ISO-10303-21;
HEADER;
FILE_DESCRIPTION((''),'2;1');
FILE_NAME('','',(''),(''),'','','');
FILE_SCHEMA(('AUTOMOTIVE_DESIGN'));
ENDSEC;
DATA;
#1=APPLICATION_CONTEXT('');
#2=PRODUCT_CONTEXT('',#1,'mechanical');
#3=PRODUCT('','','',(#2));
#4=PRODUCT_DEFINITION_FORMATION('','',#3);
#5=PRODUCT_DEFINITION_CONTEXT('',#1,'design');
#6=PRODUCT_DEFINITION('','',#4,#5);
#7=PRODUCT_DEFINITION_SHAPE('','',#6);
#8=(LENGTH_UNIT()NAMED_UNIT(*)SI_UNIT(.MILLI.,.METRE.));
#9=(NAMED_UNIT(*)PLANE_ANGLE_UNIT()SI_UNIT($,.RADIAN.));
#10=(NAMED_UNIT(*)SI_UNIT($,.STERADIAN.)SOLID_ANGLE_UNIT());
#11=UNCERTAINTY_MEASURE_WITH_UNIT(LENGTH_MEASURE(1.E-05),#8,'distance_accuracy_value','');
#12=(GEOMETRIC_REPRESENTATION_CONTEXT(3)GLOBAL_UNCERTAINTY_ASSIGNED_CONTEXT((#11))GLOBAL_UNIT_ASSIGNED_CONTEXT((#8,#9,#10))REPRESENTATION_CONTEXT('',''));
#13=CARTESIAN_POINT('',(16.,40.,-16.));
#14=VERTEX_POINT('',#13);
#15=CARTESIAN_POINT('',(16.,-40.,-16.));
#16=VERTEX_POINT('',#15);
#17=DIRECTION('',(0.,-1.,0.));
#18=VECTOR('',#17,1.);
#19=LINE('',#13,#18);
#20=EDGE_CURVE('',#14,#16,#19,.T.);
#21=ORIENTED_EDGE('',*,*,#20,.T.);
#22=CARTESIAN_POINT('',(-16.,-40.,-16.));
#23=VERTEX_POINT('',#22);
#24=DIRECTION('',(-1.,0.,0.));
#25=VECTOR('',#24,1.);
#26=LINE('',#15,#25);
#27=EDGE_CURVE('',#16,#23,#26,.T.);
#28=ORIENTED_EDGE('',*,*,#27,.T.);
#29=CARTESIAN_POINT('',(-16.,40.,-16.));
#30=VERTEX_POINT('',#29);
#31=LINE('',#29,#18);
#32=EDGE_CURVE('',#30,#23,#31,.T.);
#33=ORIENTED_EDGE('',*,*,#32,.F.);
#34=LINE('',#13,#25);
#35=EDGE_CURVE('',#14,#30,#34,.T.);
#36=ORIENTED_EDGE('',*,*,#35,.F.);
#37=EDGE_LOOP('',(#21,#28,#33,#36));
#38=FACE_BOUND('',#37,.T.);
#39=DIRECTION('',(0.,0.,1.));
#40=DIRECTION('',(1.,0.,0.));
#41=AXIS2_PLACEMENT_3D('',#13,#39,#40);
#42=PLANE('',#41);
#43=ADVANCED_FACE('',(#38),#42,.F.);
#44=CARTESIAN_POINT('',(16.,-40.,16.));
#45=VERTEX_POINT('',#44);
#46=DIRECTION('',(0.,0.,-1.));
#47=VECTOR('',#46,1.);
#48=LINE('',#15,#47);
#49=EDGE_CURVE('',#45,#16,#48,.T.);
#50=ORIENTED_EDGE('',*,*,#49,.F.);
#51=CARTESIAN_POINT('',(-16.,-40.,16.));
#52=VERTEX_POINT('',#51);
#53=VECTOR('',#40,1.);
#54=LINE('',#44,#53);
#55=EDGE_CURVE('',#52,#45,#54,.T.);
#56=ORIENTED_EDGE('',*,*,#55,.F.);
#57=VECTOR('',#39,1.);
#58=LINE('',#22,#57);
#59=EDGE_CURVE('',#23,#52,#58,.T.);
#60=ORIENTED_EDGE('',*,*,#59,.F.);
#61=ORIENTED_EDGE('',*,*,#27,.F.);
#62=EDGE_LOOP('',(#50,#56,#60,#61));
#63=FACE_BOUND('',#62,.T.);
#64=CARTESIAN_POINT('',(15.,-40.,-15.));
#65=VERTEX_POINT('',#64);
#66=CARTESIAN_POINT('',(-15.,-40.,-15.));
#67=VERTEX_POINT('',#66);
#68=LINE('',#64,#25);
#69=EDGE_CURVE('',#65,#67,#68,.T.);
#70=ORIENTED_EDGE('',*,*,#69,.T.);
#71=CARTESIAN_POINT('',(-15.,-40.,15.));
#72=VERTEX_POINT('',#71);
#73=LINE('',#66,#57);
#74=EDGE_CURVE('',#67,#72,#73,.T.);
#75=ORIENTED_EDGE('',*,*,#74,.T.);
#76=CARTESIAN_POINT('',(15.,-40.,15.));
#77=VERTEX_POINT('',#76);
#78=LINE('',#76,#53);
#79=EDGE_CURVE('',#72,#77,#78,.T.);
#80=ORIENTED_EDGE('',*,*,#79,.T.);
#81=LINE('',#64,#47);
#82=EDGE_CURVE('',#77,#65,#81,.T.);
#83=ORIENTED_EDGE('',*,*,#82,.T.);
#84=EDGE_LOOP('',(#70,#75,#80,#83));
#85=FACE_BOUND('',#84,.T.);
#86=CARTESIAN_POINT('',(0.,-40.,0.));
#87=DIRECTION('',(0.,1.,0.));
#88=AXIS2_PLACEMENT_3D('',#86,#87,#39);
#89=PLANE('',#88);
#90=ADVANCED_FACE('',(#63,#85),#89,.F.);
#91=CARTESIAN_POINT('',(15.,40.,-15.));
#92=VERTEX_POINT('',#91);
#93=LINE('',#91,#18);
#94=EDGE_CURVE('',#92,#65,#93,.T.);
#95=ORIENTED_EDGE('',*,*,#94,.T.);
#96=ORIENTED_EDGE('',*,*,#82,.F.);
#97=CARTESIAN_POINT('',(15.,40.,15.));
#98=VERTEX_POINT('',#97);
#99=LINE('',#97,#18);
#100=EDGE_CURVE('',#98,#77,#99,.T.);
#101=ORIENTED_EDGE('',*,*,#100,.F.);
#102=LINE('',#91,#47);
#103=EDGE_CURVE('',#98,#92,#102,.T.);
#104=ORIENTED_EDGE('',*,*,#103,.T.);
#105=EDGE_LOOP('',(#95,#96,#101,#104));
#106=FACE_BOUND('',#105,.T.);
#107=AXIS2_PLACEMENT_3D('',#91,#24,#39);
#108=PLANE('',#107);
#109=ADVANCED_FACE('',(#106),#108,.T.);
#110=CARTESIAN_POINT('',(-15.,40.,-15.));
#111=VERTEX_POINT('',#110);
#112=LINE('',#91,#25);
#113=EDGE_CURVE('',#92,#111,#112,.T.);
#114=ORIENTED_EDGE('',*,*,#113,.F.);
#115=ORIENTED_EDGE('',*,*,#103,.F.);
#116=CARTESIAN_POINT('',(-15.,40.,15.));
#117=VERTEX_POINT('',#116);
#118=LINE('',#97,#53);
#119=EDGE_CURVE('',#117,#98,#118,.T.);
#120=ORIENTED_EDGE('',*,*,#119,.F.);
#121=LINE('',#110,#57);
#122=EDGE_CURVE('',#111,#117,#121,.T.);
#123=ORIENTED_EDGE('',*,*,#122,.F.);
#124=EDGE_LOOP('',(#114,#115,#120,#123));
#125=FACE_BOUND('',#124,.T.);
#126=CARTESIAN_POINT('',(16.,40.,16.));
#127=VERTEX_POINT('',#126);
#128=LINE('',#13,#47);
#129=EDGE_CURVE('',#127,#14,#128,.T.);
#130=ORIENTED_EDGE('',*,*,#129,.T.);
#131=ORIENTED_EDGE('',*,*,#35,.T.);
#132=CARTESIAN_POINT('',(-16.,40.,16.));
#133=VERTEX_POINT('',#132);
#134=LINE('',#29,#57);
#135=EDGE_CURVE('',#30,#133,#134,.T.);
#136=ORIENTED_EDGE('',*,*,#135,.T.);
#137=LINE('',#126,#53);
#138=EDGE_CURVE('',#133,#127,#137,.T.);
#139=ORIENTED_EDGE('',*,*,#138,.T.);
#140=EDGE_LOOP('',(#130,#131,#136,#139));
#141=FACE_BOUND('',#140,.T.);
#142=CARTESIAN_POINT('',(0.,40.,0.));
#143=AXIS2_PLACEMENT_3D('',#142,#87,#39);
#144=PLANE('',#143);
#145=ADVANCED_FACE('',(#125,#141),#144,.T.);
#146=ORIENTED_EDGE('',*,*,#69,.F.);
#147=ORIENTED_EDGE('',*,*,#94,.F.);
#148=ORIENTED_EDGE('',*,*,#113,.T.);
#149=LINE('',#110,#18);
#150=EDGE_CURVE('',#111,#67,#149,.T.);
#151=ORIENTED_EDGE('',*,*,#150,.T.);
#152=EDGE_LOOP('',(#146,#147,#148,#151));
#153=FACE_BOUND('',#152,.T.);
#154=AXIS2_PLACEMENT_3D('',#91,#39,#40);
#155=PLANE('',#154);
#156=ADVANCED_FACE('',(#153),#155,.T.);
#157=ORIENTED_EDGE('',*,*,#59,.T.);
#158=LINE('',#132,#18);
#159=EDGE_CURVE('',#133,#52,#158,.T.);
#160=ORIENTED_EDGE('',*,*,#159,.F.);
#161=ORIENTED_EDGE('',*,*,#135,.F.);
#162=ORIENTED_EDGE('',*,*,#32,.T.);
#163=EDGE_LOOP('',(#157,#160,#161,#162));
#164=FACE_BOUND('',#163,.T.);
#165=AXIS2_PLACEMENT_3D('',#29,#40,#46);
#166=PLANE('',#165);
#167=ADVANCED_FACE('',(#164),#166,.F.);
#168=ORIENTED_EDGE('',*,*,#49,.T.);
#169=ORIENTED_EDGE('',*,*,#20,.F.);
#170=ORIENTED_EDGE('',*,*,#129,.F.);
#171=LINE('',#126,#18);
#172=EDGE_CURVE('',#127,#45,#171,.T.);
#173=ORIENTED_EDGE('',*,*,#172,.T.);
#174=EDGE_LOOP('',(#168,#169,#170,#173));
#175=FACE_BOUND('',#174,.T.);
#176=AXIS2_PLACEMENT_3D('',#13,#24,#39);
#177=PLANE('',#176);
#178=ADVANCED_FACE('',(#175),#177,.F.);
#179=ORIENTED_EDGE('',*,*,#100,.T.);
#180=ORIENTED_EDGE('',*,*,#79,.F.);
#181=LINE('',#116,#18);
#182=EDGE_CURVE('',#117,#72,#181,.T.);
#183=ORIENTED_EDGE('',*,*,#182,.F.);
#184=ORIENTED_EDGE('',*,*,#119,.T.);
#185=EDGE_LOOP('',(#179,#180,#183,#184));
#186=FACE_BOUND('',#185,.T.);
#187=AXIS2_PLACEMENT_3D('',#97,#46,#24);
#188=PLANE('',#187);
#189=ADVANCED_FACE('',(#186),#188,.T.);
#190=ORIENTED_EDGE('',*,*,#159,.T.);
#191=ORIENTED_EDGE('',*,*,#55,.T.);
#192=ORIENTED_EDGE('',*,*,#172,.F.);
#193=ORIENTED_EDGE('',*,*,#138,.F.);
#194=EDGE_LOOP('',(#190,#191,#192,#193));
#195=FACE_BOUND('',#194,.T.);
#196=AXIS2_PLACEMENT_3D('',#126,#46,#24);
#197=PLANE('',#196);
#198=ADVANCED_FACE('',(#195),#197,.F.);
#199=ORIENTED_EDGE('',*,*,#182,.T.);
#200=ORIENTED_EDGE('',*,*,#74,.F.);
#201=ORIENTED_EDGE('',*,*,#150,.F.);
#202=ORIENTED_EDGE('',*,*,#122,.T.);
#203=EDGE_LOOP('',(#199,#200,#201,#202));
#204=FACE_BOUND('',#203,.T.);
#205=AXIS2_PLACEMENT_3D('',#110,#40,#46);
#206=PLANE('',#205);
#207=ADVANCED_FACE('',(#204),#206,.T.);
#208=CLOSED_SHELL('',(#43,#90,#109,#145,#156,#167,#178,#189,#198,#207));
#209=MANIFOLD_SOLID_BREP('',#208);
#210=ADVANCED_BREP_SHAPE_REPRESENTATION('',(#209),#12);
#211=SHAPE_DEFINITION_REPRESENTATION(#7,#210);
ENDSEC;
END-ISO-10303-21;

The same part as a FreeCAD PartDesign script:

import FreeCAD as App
import Part
import Sketcher

V = App.Vector
Q = App.Units.Quantity

doc = App.newDocument("Part")
params = doc.addObject("Spreadsheet::Sheet", "Params")
for row, (alias, value) in enumerate([
    ("sketch1_width", "32 mm"),
    ("sketch1_width2", "30 mm"),
    ("pad1_length", "80 mm"),
], start=1):
    params.set(f"A{row}", alias)
    params.set(f"B{row}", "=" + value)
    params.setAlias(f"B{row}", alias)

body = doc.addObject("PartDesign::Body", "Body")

# Sketch on XZ plane
sketch1 = body.newObject("Sketcher::SketchObject", "Sketch")
sketch1.AttachmentSupport = (doc.getObject("XZ_Plane"), [""])
sketch1.MapMode = "FlatFace"
sketch1.addGeometry([
    Part.LineSegment(V(-16, -16, 0), V(-16, 16, 0)),  # 0
    Part.LineSegment(V(-16, 16, 0), V(16, 16, 0)),  # 1
    Part.LineSegment(V(16, 16, 0), V(16, -16, 0)),  # 2
    Part.LineSegment(V(16, -16, 0), V(-16, -16, 0)),  # 3
    Part.LineSegment(V(15, 15, 0), V(-15, 15, 0)),  # 4
    Part.LineSegment(V(-15, 15, 0), V(-15, -15, 0)),  # 5
    Part.LineSegment(V(-15, -15, 0), V(15, -15, 0)),  # 6
    Part.LineSegment(V(15, -15, 0), V(15, 15, 0)),  # 7
], False)
sketch1.addConstraint([
    Sketcher.Constraint("Coincident", 0, 2, 1, 1),
    Sketcher.Constraint("Coincident", 1, 2, 2, 1),
    Sketcher.Constraint("Coincident", 2, 2, 3, 1),
    Sketcher.Constraint("Coincident", 3, 2, 0, 1),
    Sketcher.Constraint("Coincident", 4, 2, 5, 1),
    Sketcher.Constraint("Coincident", 5, 2, 6, 1),
    Sketcher.Constraint("Coincident", 6, 2, 7, 1),
    Sketcher.Constraint("Coincident", 7, 2, 4, 1),
    Sketcher.Constraint("Vertical", 0),
    Sketcher.Constraint("Horizontal", 1),
    Sketcher.Constraint("Vertical", 2),
    Sketcher.Constraint("Horizontal", 3),
    Sketcher.Constraint("Horizontal", 4),
    Sketcher.Constraint("Vertical", 5),
    Sketcher.Constraint("Horizontal", 6),
    Sketcher.Constraint("Vertical", 7),
    Sketcher.Constraint("Symmetric", 0, 2, 2, 2, -1, 1),
    Sketcher.Constraint("Symmetric", 4, 2, 6, 2, -1, 1),
    Sketcher.Constraint("Equal", 3, 0),
    Sketcher.Constraint("Equal", 6, 5),
    Sketcher.Constraint("DistanceX", 1, 1, 1, 2, Q("32 mm")),
    Sketcher.Constraint("DistanceX", 4, 2, 4, 1, Q("30 mm")),
])
sketch1.setExpression("Constraints[20]", "Params.sketch1_width")
sketch1.setExpression("Constraints[21]", "Params.sketch1_width2")
pad1 = body.newObject("PartDesign::Pad", "Pad")
pad1.Profile = sketch1
pad1.setExpression("Length", "Params.pad1_length")
pad1.Midplane = True

doc.recompute()
